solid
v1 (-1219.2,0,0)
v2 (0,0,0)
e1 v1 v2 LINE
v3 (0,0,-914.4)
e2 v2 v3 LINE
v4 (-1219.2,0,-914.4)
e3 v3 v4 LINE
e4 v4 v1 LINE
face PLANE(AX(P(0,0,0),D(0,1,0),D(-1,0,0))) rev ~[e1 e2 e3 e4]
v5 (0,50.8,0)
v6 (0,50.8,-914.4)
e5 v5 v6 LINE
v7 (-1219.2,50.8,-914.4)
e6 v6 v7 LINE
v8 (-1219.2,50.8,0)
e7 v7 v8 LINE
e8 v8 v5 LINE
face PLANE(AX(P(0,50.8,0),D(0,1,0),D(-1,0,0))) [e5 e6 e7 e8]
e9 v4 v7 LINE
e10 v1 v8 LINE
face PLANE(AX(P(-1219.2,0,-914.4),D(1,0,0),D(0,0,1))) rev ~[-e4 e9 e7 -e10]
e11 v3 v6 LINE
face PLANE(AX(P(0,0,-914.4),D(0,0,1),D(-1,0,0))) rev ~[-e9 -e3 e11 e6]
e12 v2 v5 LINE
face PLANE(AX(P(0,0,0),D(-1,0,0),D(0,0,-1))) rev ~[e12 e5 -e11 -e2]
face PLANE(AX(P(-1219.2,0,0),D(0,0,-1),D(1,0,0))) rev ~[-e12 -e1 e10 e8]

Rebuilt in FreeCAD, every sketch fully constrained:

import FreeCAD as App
import Part
import Sketcher

V = App.Vector
Q = App.Units.Quantity


def add_polygon(sketch, points):
    """Adds a closed chain of lines whose ends are joined by coincident constraints."""
    first, n = sketch.GeometryCount, len(points)
    for a, b in zip(points, points[1:] + points[:1]):
        sketch.addGeometry(Part.LineSegment(App.Vector(*a, 0), App.Vector(*b, 0)), False)
    for i in range(n):
        sketch.addConstraint(Sketcher.Constraint("Coincident", first + i, 2, first + (i + 1) % n, 1))

doc = App.newDocument("Part")
body = doc.addObject("PartDesign::Body", "Body")

sketch1 = body.newObject("Sketcher::SketchObject", "Sketch")
sketch1.AttachmentSupport = (doc.getObject("XZ_Plane"), [""])
sketch1.MapMode = "FlatFace"
add_polygon(sketch1, [(-1219, 0), (0, 0), (0, -914), (-1219, -914)])
sketch1.addConstraint(Sketcher.Constraint("Horizontal", 0))
sketch1.addConstraint(Sketcher.Constraint("Vertical", 1))
sketch1.addConstraint(Sketcher.Constraint("Horizontal", 2))
sketch1.addConstraint(Sketcher.Constraint("Vertical", 3))
sketch1.addConstraint(Sketcher.Constraint("Coincident", 0, 2, -1, 1))
sketch1.addConstraint(Sketcher.Constraint("DistanceX", 0, 1, 0, 2, Q("48 in")))
sketch1.addConstraint(Sketcher.Constraint("DistanceY", 1, 2, 1, 1, Q("36 in")))
pad1 = body.newObject("PartDesign::Pad", "Pad")
pad1.Profile = sketch1
pad1.Length = Q("2 in")
pad1.Reversed = True

doc.recompute()
